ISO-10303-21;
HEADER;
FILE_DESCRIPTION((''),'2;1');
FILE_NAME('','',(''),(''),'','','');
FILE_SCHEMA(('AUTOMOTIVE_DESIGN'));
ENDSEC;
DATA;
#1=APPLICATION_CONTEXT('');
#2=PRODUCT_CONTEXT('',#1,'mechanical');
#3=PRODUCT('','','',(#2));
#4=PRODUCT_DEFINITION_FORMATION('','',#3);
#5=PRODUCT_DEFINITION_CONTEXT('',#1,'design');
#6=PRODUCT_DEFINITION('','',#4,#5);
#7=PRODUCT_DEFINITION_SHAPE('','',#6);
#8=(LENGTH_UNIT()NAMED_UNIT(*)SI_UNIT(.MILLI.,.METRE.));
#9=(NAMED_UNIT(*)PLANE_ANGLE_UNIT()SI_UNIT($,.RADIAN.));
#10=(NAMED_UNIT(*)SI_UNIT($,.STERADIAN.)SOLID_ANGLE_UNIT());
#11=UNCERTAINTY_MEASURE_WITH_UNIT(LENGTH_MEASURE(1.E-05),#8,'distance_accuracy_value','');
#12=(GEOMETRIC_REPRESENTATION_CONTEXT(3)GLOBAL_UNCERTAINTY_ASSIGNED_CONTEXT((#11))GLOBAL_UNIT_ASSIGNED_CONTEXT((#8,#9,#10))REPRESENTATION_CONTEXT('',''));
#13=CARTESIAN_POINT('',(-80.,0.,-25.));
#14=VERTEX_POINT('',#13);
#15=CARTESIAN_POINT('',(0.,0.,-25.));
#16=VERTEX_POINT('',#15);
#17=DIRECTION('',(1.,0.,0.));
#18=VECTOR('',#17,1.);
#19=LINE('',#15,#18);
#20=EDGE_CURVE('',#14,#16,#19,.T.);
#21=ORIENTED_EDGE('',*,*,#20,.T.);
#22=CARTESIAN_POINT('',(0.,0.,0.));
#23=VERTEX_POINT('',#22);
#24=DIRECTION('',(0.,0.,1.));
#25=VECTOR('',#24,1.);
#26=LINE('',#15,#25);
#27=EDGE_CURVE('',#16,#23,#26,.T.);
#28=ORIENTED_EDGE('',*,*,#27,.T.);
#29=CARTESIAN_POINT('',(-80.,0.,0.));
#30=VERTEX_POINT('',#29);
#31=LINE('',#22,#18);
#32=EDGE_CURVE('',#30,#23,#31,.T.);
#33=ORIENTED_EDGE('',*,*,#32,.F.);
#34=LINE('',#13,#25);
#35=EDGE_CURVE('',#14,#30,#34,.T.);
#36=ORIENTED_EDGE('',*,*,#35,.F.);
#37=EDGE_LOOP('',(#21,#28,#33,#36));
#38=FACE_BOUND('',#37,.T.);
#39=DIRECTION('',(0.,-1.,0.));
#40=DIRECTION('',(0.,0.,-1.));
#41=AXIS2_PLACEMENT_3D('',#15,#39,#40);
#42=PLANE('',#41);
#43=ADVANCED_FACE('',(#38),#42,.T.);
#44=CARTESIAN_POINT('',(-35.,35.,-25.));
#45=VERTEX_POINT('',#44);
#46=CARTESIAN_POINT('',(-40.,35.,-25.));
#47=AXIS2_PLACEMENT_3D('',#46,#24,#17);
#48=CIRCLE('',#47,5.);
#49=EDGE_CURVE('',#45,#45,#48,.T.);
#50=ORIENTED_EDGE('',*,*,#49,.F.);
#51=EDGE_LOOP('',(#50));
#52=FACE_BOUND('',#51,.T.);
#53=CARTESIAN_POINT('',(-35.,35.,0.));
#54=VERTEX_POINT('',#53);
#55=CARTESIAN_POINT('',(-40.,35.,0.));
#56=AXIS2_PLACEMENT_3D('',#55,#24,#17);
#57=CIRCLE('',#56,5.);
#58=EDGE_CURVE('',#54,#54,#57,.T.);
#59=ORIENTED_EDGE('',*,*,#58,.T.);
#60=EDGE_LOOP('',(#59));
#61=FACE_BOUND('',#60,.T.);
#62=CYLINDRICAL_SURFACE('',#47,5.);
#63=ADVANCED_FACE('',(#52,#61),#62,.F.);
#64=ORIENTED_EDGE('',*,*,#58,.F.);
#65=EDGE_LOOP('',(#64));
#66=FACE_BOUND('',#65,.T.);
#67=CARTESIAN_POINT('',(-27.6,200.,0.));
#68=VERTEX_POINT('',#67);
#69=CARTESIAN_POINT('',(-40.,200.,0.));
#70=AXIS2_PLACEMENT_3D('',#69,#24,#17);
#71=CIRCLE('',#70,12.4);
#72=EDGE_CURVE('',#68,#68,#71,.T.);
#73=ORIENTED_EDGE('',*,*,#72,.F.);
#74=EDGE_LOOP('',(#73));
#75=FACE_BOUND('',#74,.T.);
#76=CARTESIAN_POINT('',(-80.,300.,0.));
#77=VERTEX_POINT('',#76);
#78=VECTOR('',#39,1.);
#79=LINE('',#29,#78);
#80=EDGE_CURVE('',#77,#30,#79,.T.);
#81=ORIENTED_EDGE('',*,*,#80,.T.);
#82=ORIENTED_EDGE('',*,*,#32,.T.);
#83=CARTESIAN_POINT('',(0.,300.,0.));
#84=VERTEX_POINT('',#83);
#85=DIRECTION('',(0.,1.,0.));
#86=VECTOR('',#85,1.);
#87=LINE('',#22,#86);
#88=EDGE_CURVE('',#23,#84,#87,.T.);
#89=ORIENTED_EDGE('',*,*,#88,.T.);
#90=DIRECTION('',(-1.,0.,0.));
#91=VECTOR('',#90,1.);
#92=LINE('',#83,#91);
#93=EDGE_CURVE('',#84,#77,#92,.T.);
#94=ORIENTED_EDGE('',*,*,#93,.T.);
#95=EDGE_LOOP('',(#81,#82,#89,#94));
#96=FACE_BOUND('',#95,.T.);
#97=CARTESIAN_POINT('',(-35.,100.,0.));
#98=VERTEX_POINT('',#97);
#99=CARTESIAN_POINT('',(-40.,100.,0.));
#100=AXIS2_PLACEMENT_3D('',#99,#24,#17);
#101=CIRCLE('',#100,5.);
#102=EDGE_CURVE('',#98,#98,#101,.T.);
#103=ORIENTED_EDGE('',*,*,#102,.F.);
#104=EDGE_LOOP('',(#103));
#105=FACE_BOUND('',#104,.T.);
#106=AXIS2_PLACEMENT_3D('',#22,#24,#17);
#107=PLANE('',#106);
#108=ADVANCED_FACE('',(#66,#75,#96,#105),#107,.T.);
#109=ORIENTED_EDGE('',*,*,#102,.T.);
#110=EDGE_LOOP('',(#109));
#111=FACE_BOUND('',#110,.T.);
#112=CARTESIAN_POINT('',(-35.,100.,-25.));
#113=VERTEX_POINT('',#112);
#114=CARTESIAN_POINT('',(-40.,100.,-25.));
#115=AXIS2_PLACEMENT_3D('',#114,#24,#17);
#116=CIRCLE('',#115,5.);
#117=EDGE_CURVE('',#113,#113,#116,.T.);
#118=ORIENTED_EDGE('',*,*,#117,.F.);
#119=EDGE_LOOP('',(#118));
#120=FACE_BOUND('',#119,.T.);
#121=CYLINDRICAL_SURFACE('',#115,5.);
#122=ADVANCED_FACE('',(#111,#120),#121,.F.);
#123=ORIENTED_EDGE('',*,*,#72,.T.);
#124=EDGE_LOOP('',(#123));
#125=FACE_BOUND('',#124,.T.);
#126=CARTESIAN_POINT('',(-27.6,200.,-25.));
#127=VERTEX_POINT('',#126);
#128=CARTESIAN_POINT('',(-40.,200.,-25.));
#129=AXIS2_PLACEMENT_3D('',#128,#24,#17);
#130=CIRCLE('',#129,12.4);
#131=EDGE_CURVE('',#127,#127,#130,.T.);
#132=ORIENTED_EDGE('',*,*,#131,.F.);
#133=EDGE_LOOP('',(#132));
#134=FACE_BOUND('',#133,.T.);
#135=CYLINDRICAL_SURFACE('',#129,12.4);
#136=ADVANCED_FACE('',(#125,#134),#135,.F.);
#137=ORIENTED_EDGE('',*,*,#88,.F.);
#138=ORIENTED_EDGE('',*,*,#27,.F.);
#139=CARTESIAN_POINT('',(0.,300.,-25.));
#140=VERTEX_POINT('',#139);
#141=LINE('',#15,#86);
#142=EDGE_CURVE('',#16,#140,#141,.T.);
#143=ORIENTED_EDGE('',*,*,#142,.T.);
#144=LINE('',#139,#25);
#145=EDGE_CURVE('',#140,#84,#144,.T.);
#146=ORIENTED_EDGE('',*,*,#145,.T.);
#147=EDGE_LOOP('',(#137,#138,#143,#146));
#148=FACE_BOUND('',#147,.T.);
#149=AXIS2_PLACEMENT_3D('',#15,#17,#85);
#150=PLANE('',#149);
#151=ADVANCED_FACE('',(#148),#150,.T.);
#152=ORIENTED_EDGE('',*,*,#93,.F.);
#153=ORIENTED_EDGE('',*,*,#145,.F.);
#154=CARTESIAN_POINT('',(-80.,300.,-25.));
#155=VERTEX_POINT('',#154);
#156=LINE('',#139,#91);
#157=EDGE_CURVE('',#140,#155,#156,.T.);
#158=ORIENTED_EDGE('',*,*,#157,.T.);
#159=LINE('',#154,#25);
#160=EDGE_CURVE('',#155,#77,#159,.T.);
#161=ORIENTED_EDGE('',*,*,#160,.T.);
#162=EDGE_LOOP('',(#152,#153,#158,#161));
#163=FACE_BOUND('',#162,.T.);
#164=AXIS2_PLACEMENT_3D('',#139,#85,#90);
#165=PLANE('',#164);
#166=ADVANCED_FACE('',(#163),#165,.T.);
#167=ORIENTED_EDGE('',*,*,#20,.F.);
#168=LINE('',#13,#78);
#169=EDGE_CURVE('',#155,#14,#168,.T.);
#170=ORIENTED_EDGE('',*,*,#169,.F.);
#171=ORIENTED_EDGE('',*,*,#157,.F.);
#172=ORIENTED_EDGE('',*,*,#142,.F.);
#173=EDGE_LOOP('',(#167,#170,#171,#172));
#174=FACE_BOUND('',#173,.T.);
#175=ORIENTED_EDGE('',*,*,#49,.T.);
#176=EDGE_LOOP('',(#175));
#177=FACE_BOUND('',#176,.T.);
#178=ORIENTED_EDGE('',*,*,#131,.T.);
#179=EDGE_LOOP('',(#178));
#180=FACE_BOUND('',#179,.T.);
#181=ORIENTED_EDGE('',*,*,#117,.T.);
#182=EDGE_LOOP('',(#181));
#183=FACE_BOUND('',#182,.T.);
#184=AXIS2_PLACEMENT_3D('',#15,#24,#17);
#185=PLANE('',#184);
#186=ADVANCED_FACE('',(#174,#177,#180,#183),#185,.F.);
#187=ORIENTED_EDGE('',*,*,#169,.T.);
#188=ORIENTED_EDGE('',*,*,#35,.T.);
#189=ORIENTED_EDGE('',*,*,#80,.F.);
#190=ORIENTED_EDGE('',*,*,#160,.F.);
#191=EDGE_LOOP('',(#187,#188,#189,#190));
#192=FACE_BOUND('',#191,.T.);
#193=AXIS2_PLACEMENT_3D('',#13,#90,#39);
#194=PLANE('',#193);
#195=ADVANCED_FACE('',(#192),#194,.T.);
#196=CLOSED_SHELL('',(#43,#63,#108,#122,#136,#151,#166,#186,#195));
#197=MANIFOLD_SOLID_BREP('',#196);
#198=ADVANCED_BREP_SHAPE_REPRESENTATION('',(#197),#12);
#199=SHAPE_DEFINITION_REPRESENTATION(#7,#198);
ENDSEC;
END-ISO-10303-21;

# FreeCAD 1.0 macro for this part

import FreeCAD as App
import Part
import Sketcher

doc = App.newDocument("Part")
body = doc.addObject("PartDesign::Body", "Body")

# Sketch on XY plane
sketch1 = body.newObject("Sketcher::SketchObject", "Sketch")
sketch1.AttachmentSupport = (doc.getObject("XY_Plane"), [""])
sketch1.MapMode = "FlatFace"
sketch1.addGeometry([
    Part.LineSegment(App.Vector(-80, 300, 0), App.Vector(-80, 0, 0)),  # 0
    Part.LineSegment(App.Vector(-80, 0, 0), App.Vector(0, 0, 0)),  # 1
    Part.LineSegment(App.Vector(0, 0, 0), App.Vector(0, 300, 0)),  # 2
    Part.LineSegment(App.Vector(0, 300, 0), App.Vector(-80, 300, 0)),  # 3
    Part.Circle(App.Vector(-40, 35, 0), App.Vector(0, 0, 1), 5),  # 4
    Part.Circle(App.Vector(-40, 100, 0), App.Vector(0, 0, 1), 5),  # 5
    Part.Circle(App.Vector(-40, 200, 0), App.Vector(0, 0, 1), 12),  # 6
], False)
sketch1.addConstraint([
    Sketcher.Constraint("Coincident", 0, 2, 1, 1),
    Sketcher.Constraint("Coincident", 1, 2, 2, 1),
    Sketcher.Constraint("Coincident", 2, 2, 3, 1),
    Sketcher.Constraint("Coincident", 3, 2, 0, 1),
    Sketcher.Constraint("Vertical", 0),
    Sketcher.Constraint("Horizontal", 1),
    Sketcher.Constraint("Vertical", 2),
    Sketcher.Constraint("Horizontal", 3),
    Sketcher.Constraint("Coincident", 1, 2, -1, 1),
    Sketcher.Constraint("Equal", 4, 5),
    Sketcher.Constraint("Vertical", 4, 3, 5, 3),
    Sketcher.Constraint("Vertical", 5, 3, 6, 3),
    Sketcher.Constraint("Diameter", 4, 10.0),
    Sketcher.Constraint("Diameter", 6, 24.8),
    Sketcher.Constraint("DistanceX", 1, 1, 1, 2, 80.0),
    Sketcher.Constraint("DistanceY", 0, 2, 0, 1, 300.0),
    Sketcher.Constraint("DistanceX", 4, 3, -1, 1, 40.0),
    Sketcher.Constraint("DistanceY", -1, 1, 4, 3, 35.0),
    Sketcher.Constraint("DistanceY", -1, 1, 5, 3, 100.0),
    Sketcher.Constraint("DistanceY", -1, 1, 6, 3, 200.0),
])
pad1 = body.newObject("PartDesign::Pad", "Pad")
pad1.Profile = sketch1
pad1.Length = 25
pad1.Reversed = True

doc.recompute()
